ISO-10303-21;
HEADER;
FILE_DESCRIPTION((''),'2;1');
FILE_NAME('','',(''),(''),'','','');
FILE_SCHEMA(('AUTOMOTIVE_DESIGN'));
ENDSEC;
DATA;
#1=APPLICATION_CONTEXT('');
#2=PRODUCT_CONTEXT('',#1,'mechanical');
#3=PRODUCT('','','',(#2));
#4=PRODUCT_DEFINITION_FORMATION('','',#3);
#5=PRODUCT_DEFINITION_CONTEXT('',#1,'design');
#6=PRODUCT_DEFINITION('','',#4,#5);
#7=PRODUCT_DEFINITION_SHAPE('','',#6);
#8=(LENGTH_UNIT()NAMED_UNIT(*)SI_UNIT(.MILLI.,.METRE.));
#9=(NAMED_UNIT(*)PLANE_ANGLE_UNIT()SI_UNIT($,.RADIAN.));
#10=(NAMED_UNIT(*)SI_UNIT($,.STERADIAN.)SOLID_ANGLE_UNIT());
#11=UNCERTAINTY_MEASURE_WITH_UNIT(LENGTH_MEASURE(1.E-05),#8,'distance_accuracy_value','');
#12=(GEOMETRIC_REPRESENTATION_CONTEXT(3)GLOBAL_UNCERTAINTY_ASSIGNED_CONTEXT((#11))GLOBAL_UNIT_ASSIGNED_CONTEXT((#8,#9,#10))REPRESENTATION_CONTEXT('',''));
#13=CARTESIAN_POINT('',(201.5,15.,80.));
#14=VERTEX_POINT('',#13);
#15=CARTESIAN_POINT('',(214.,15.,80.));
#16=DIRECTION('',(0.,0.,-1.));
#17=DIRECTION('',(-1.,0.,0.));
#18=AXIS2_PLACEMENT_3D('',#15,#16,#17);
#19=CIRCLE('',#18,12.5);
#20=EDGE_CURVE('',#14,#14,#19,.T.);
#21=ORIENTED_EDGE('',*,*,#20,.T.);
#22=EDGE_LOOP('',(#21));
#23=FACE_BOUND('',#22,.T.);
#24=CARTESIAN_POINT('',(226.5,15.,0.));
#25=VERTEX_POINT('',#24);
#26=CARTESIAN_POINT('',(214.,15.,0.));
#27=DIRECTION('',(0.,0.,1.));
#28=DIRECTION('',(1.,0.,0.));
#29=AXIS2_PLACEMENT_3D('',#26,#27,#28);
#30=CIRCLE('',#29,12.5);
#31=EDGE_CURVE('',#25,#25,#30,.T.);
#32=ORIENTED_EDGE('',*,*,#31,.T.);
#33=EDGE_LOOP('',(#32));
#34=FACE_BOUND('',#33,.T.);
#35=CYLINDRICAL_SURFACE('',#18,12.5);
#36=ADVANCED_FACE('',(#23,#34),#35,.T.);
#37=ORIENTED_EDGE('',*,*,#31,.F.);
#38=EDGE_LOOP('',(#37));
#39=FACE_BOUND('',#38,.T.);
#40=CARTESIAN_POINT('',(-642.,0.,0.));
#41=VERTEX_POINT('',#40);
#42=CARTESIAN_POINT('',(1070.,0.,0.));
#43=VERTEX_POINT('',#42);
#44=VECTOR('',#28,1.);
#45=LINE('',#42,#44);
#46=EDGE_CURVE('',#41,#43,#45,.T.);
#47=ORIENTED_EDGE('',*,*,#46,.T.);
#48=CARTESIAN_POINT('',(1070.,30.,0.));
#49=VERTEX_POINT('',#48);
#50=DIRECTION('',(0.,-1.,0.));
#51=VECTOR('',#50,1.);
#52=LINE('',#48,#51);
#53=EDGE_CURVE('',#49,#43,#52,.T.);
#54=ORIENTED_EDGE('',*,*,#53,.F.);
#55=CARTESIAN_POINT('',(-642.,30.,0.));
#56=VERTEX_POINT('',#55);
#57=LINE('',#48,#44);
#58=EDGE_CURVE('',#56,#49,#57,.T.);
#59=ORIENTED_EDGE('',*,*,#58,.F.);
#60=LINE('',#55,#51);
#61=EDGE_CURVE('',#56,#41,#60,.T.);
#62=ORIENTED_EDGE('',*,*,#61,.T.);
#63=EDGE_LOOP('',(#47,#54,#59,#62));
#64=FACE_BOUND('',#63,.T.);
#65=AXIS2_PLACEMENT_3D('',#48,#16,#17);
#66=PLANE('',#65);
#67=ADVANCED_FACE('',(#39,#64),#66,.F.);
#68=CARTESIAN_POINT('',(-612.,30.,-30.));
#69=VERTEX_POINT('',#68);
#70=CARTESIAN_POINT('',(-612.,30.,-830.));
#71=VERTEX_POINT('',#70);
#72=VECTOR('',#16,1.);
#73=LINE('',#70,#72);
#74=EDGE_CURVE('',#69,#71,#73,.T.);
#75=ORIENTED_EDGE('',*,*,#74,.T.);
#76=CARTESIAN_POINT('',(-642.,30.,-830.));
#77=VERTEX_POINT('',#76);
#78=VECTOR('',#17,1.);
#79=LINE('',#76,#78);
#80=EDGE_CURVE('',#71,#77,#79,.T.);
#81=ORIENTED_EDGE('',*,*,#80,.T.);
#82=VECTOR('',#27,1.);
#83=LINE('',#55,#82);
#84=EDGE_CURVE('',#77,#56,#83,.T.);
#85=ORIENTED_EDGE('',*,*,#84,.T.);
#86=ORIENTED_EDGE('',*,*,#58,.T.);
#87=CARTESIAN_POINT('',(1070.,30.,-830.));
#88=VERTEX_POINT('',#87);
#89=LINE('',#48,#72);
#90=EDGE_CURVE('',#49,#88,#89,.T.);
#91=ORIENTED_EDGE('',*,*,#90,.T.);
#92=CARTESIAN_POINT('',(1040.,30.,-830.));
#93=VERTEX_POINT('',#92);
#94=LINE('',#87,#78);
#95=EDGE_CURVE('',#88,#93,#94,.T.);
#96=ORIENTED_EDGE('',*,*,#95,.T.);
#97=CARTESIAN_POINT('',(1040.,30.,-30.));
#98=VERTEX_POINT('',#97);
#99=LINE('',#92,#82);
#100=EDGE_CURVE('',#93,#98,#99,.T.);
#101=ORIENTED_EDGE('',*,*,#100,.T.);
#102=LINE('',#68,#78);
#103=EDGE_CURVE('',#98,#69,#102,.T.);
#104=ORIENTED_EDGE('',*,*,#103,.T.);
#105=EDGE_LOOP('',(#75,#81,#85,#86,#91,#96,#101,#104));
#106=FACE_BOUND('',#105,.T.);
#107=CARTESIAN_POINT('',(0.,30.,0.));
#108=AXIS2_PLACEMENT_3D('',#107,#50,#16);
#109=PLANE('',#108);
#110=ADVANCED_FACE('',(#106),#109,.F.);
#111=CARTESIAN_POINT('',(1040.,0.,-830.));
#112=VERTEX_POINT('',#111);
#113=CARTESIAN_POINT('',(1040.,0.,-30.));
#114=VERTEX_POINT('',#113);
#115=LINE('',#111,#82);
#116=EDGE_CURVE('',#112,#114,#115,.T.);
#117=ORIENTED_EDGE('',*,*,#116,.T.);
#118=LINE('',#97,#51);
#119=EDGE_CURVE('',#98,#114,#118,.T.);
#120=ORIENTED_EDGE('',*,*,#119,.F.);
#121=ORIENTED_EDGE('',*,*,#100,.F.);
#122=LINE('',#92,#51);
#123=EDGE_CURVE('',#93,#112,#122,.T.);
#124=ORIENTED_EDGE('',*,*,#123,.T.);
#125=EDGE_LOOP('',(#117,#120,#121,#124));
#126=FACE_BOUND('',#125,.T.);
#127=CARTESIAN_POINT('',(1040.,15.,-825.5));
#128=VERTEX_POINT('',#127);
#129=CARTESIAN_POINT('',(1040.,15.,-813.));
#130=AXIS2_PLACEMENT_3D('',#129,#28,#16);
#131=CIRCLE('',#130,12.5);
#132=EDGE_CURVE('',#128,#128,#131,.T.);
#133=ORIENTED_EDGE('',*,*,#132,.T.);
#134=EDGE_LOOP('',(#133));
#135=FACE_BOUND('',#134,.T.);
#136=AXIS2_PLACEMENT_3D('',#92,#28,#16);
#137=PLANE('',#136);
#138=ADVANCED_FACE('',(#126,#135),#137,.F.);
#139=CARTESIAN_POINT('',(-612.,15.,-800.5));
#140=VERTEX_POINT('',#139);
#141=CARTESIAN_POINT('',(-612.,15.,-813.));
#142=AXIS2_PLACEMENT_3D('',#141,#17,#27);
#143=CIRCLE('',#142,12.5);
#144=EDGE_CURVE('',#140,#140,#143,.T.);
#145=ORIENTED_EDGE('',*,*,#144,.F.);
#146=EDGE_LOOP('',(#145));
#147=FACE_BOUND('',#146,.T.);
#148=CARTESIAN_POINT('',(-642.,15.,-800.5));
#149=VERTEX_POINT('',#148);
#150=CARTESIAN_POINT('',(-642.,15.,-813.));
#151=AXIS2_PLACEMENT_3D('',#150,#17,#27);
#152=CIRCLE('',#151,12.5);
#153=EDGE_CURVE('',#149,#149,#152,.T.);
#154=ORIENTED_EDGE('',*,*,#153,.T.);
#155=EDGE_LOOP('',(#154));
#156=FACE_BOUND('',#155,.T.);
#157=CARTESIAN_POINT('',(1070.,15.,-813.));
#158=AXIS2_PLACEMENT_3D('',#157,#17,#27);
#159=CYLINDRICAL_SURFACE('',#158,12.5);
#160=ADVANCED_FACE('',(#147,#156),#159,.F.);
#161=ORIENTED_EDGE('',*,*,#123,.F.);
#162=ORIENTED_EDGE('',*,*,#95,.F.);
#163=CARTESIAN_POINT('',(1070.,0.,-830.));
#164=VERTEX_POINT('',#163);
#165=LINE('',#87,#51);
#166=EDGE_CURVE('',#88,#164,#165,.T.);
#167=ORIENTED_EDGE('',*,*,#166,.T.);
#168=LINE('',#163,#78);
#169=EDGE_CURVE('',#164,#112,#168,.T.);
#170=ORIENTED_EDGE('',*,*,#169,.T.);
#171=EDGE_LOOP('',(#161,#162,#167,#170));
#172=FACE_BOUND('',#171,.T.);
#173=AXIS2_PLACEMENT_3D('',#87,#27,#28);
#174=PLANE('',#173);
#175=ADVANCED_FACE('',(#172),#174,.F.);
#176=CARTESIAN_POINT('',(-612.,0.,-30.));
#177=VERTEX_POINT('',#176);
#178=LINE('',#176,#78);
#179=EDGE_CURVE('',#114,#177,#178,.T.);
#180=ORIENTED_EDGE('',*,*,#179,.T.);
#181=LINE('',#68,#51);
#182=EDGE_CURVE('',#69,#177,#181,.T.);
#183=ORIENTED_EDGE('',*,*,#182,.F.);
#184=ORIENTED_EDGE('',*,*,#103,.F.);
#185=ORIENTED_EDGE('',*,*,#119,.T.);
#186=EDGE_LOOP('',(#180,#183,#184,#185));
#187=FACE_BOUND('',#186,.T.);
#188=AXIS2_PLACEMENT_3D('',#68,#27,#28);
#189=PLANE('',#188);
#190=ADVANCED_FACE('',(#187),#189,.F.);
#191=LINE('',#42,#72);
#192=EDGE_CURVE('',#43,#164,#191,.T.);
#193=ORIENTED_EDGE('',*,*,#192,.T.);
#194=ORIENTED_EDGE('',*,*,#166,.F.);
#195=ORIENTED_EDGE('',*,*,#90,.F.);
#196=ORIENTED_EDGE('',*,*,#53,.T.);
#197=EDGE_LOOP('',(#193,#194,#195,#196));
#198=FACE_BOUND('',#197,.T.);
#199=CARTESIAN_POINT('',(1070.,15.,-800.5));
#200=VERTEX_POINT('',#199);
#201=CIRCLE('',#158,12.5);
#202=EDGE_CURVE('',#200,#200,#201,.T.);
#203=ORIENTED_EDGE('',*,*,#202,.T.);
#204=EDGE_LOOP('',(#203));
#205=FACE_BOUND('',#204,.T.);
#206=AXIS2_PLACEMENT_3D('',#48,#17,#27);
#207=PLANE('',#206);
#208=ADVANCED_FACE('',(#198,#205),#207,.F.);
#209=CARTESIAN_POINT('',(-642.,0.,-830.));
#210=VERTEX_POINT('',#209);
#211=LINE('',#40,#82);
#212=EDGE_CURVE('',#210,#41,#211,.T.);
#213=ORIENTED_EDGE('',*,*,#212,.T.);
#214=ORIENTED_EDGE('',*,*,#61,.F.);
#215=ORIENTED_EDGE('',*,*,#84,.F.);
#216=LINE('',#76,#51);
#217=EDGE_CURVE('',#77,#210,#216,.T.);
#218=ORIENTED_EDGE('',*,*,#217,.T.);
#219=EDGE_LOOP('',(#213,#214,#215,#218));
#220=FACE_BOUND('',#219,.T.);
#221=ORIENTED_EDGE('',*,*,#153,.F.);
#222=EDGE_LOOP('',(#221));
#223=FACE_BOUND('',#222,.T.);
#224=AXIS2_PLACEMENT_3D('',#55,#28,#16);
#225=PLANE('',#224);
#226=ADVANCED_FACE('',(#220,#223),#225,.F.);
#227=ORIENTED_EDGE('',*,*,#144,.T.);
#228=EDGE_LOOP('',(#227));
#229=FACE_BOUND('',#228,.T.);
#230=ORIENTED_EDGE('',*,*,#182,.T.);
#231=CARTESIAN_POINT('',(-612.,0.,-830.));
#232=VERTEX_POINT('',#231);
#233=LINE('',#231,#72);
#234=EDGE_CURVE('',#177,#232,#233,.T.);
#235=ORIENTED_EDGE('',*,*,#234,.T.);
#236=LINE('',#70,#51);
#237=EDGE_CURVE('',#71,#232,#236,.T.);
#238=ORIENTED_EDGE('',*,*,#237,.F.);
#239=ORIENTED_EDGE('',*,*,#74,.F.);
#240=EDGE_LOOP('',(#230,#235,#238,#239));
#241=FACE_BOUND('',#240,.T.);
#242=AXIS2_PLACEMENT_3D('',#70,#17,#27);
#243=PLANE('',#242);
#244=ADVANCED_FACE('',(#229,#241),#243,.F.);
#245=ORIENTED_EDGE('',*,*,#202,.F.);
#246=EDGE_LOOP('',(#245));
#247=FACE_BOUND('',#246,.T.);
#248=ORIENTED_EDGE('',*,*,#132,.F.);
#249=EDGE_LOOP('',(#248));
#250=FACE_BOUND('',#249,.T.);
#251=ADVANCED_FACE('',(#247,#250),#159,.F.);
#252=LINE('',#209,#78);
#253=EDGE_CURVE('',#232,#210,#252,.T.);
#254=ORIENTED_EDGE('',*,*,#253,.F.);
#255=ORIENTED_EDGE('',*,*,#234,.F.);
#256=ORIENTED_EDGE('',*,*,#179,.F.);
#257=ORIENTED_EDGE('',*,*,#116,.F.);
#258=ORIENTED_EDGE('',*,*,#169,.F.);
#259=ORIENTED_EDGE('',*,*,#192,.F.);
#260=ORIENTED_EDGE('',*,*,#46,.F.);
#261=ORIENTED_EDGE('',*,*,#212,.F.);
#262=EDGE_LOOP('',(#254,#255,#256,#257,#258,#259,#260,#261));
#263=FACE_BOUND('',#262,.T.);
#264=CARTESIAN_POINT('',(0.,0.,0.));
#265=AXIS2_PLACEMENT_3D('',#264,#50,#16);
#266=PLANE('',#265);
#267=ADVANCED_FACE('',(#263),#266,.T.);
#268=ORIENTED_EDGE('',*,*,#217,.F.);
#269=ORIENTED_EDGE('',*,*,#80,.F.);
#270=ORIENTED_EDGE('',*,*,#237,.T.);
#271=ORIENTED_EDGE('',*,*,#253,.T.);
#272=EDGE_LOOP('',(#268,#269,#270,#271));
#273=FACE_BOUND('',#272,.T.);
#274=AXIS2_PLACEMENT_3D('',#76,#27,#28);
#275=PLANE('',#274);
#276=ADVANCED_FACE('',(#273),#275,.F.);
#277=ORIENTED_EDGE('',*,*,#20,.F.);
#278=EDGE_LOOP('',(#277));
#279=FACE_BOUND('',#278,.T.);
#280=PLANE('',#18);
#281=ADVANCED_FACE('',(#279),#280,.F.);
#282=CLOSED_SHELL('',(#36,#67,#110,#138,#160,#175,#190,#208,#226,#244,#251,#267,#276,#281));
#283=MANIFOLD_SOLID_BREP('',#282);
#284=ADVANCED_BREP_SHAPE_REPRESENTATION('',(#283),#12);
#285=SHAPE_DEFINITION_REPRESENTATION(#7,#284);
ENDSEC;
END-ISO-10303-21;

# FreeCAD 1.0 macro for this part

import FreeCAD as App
import Part
import Sketcher
Q = App.Units.Quantity


def add_polygon(sketch, points):
    """Adds a closed chain of lines whose ends are joined by coincident constraints."""
    first, n = sketch.GeometryCount, len(points)
    for a, b in zip(points, points[1:] + points[:1]):
        sketch.addGeometry(Part.LineSegment(App.Vector(*a, 0), App.Vector(*b, 0)), False)
    for i in range(n):
        sketch.addConstraint(Sketcher.Constraint("Coincident", first + i, 2, first + (i + 1) % n, 1))

doc = App.newDocument("Part")
body = doc.addObject("PartDesign::Body", "Body")

sketch1 = body.newObject("Sketcher::SketchObject", "Sketch")
sketch1.AttachmentSupport = (doc.getObject("XZ_Plane"), [""])
sketch1.MapMode = "FlatFace"
add_polygon(sketch1, [(-642, 0), (1070, 0), (1070, -830), (1040, -830), (1040, -30), (-612, -30), (-612, -830), (-642, -830)])
sketch1.addConstraint(Sketcher.Constraint("Horizontal", 0))
sketch1.addConstraint(Sketcher.Constraint("Vertical", 1))
sketch1.addConstraint(Sketcher.Constraint("Horizontal", 2))
sketch1.addConstraint(Sketcher.Constraint("Vertical", 3))
sketch1.addConstraint(Sketcher.Constraint("Horizontal", 4))
sketch1.addConstraint(Sketcher.Constraint("Vertical", 5))
sketch1.addConstraint(Sketcher.Constraint("Horizontal", 6))
sketch1.addConstraint(Sketcher.Constraint("Vertical", 7))
sketch1.addConstraint(Sketcher.Constraint("PointOnObject", 0, 2, -1))
sketch1.addConstraint(Sketcher.Constraint("Horizontal", 2, 2, 5, 2))
sketch1.addConstraint(Sketcher.Constraint("Equal", 2, 6))
sketch1.addConstraint(Sketcher.Constraint("DistanceX", 0, 1, 0, 2, Q("1712 mm")))
sketch1.addConstraint(Sketcher.Constraint("DistanceX", 2, 2, 2, 1, Q("30 mm")))
sketch1.addConstraint(Sketcher.Constraint("DistanceY", 1, 2, 1, 1, Q("830 mm")))
sketch1.addConstraint(Sketcher.Constraint("DistanceY", 3, 1, 3, 2, Q("800 mm")))
sketch1.addConstraint(Sketcher.Constraint("DistanceX", -1, 1, 0, 2, Q("1070 mm")))
pad1 = body.newObject("PartDesign::Pad", "Pad")
pad1.Profile = sketch1
pad1.Length = 30
pad1.Reversed = True

sketch2 = body.newObject("Sketcher::SketchObject", "Sketch001")
sketch2.AttachmentSupport = (doc.getObject("YZ_Plane"), [""])
sketch2.MapMode = "FlatFace"
sketch2.AttachmentOffset = App.Placement(App.Vector(0, 0, -642), App.Rotation())
sketch2.addGeometry(Part.Circle(App.Vector(15, -813, 0), App.Vector(0, 0, 1), 12.5), False)
sketch2.addConstraint(Sketcher.Constraint("Diameter", 0, Q("25 mm")))
sketch2.addConstraint(Sketcher.Constraint("DistanceX", -1, 1, 0, 3, Q("15 mm")))
sketch2.addConstraint(Sketcher.Constraint("DistanceY", 0, 3, -1, 1, Q("813 mm")))
pocket1 = body.newObject("PartDesign::Pocket", "Pocket")
pocket1.Profile = sketch2
pocket1.Type = "ThroughAll"
pocket1.Reversed = True

sketch3 = body.newObject("Sketcher::SketchObject", "Sketch002")
sketch3.AttachmentSupport = (doc.getObject("XY_Plane"), [""])
sketch3.MapMode = "FlatFace"
sketch3.addGeometry(Part.Circle(App.Vector(214, 15, 0), App.Vector(0, 0, 1), 12.5), False)
sketch3.addConstraint(Sketcher.Constraint("Diameter", 0, Q("25 mm")))
sketch3.addConstraint(Sketcher.Constraint("DistanceX", -1, 1, 0, 3, Q("214 mm")))
sketch3.addConstraint(Sketcher.Constraint("DistanceY", -1, 1, 0, 3, Q("15 mm")))
pocket2 = body.newObject("PartDesign::Pocket", "Pocket001")
pocket2.Profile = sketch3
pocket2.Type = "ThroughAll"

sketch4 = body.newObject("Sketcher::SketchObject", "Sketch003")
sketch4.AttachmentSupport = (doc.getObject("XY_Plane"), [""])
sketch4.MapMode = "FlatFace"
sketch4.AttachmentOffset = App.Placement(App.Vector(0, 0, 80), App.Rotation())
sketch4.addGeometry(Part.Circle(App.Vector(214, 15, 0), App.Vector(0, 0, 1), 12.5), False)
sketch4.addConstraint(Sketcher.Constraint("Diameter", 0, Q("25 mm")))
sketch4.addConstraint(Sketcher.Constraint("DistanceX", -1, 1, 0, 3, Q("214 mm")))
sketch4.addConstraint(Sketcher.Constraint("DistanceY", -1, 1, 0, 3, Q("15 mm")))
pad2 = body.newObject("PartDesign::Pad", "Pad001")
pad2.Profile = sketch4
pad2.Length = 110
pad2.Reversed = True

doc.recompute()
